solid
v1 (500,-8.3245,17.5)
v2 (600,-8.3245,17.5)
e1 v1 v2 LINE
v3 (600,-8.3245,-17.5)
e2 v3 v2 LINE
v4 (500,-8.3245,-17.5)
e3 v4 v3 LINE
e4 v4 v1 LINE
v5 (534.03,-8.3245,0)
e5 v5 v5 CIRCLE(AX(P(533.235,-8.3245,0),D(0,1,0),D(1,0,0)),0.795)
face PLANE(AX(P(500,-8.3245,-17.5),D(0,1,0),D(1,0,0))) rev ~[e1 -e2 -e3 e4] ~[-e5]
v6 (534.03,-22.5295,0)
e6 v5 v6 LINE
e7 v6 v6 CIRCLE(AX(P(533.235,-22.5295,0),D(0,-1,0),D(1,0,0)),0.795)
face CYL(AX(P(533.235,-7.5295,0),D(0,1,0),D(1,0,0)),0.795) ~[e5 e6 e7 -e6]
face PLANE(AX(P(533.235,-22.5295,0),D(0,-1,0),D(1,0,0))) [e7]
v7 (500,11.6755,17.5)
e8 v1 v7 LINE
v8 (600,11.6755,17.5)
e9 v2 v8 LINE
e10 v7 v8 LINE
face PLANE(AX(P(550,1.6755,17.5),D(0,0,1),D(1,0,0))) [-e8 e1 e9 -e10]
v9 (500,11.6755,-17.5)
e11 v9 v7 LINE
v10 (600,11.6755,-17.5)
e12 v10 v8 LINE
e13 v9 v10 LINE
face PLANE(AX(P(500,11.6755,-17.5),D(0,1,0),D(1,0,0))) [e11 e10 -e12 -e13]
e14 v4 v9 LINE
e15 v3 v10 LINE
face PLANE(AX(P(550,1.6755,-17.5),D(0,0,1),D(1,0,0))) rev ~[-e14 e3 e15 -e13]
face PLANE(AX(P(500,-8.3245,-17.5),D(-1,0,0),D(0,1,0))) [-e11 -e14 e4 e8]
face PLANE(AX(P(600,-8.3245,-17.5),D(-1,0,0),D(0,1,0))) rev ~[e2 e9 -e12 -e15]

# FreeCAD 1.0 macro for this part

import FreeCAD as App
import Part
import Sketcher
from FreeCAD import Vector
Q = App.Units.Quantity


def add_polygon(sketch, points):
    """Adds a closed chain of lines whose ends are joined by coincident constraints."""
    first, n = sketch.GeometryCount, len(points)
    for a, b in zip(points, points[1:] + points[:1]):
        sketch.addGeometry(Part.LineSegment(App.Vector(*a, 0), App.Vector(*b, 0)), False)
    for i in range(n):
        sketch.addConstraint(Sketcher.Constraint("Coincident", first + i, 2, first + (i + 1) % n, 1))

doc = App.newDocument("Part")
body = doc.addObject("PartDesign::Body", "Body")

sketch1 = doc.addObject("Sketcher::SketchObject", "Sketch")
body.addObject(sketch1)
sketch1.AttachmentSupport = (doc.XY_Plane, [""])
sketch1.MapMode = "FlatFace"
sketch1.AttachmentOffset = App.Placement(Vector(0, 0, -17.5), App.Rotation())
add_polygon(sketch1, [(500, 12), (500, -8), (600, -8), (600, 12)])
sketch1.addConstraint([
    Sketcher.Constraint("Vertical", 0),
    Sketcher.Constraint("Horizontal", 1),
    Sketcher.Constraint("Vertical", 2),
    Sketcher.Constraint("Horizontal", 3),
    Sketcher.Constraint("DistanceX", 1, 1, 1, 2, Q("100 mm")),
    Sketcher.Constraint("DistanceY", 0, 2, 0, 1, Q("20 mm")),
    Sketcher.Constraint("DistanceX", -1, 1, 0, 2, Q("500 mm")),
    Sketcher.Constraint("DistanceY", 0, 2, -1, 1, Q("8.3245 mm")),
])
pad1 = doc.addObject("PartDesign::Pad", "Pad")
body.addObject(pad1)
pad1.Profile = sketch1
pad1.Length = 35
body2 = doc.addObject("PartDesign::Body", "Body001")

sketch2 = doc.addObject("Sketcher::SketchObject", "Sketch001")
body2.addObject(sketch2)
sketch2.AttachmentSupport = (doc.getObject("XZ_Plane001"), [""])
sketch2.MapMode = "FlatFace"
sketch2.AttachmentOffset = App.Placement(Vector(0, 0, 7.5295), App.Rotation())
sketch2.addGeometry(Part.Circle(Vector(533.2, 0, 0), Vector(0, 0, 1), 0.8), False)
sketch2.addConstraint([
    Sketcher.Constraint("PointOnObject", 0, 3, -1),
    Sketcher.Constraint("Diameter", 0, Q("1.59 mm")),
    Sketcher.Constraint("DistanceX", -1, 1, 0, 3, Q("533.235 mm")),
])
pad2 = doc.addObject("PartDesign::Pad", "Pad001")
body2.addObject(pad2)
pad2.Profile = sketch2
pad2.Length = 15
doc.recompute()

boolean = doc.addObject("PartDesign::Boolean", "Boolean")
body2.addObject(boolean)
boolean.Type = "Fuse"
boolean.addObjects([body])

doc.recompute()
